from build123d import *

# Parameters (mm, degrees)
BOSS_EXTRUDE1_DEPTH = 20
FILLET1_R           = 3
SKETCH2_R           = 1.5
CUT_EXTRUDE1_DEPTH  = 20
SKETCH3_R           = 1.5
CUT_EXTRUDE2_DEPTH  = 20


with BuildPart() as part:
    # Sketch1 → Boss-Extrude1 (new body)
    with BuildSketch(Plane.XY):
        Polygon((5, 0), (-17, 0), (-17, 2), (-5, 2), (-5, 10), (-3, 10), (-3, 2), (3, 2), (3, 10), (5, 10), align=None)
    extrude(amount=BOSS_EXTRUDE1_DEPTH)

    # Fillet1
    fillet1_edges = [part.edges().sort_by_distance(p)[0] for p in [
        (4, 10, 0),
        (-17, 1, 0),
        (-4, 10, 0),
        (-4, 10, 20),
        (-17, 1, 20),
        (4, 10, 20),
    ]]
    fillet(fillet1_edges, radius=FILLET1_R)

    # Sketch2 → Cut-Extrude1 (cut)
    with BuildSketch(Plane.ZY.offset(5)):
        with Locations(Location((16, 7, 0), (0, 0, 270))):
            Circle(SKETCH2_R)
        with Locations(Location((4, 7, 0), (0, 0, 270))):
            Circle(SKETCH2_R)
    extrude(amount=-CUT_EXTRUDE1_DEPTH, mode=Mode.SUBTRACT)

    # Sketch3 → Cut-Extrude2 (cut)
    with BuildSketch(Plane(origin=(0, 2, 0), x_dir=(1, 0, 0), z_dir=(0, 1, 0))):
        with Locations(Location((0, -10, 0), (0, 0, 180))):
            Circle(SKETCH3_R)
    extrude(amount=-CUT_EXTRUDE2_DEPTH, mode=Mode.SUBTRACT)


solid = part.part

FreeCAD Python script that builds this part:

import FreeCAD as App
import Part
import Sketcher
from FreeCAD import Vector
Q = App.Units.Quantity


def edges_at(feature, points):
    """Names of the edges that pass closest to the given points."""
    edges = feature.Shape.Edges
    near = lambda p: min(range(len(edges)), key=lambda i: edges[i].distToShape(Part.Vertex(*p))[0])
    return sorted({f"Edge{near(p) + 1}" for p in points})


def add_polygon(sketch, points):
    """Adds a closed chain of lines whose ends are joined by coincident constraints."""
    first, n = sketch.GeometryCount, len(points)
    for a, b in zip(points, points[1:] + points[:1]):
        sketch.addGeometry(Part.LineSegment(App.Vector(*a, 0), App.Vector(*b, 0)), False)
    for i in range(n):
        sketch.addConstraint(Sketcher.Constraint("Coincident", first + i, 2, first + (i + 1) % n, 1))

doc = App.newDocument("Part")
body = doc.addObject("PartDesign::Body", "Body")

# Sketch on XY plane
sketch1 = body.newObject("Sketcher::SketchObject", "Sketch")
sketch1.AttachmentSupport = (doc.getObject("XY_Plane"), [""])
sketch1.MapMode = "FlatFace"
add_polygon(sketch1, [(-17, 0), (5, 0), (5, 10), (3, 10), (3, 2), (-3, 2), (-3, 10), (-5, 10), (-5, 2), (-17, 2)])  # lines 0-9
sketch1.addConstraint(Sketcher.Constraint("Horizontal", 0))
sketch1.addConstraint(Sketcher.Constraint("Vertical", 1))
sketch1.addConstraint(Sketcher.Constraint("Horizontal", 2))
sketch1.addConstraint(Sketcher.Constraint("Vertical", 3))
sketch1.addConstraint(Sketcher.Constraint("Horizontal", 4))
sketch1.addConstraint(Sketcher.Constraint("Vertical", 5))
sketch1.addConstraint(Sketcher.Constraint("Horizontal", 6))
sketch1.addConstraint(Sketcher.Constraint("Vertical", 7))
sketch1.addConstraint(Sketcher.Constraint("Horizontal", 8))
sketch1.addConstraint(Sketcher.Constraint("Vertical", 9))
sketch1.addConstraint(Sketcher.Constraint("Symmetric", 2, 2, 5, 2, -2))
sketch1.addConstraint(Sketcher.Constraint("PointOnObject", 0, 2, -1))
sketch1.addConstraint(Sketcher.Constraint("Horizontal", 4, 2, 7, 2))
sketch1.addConstraint(Sketcher.Constraint("Equal", 2, 6))
sketch1.addConstraint(Sketcher.Constraint("Equal", 6, 9))
sketch1.addConstraint(Sketcher.Constraint("DistanceX", 0, 1, 0, 2, Q("22 mm")))
sketch1.addConstraint(Sketcher.Constraint("DistanceX", 2, 2, 2, 1, Q("2 mm")))
sketch1.addConstraint(Sketcher.Constraint("DistanceX", 4, 2, 4, 1, Q("6 mm")))
sketch1.addConstraint(Sketcher.Constraint("DistanceY", 1, 1, 1, 2, Q("10 mm")))
pad1 = body.newObject("PartDesign::Pad", "Pad")
pad1.Profile = sketch1
pad1.Length = 20
doc.recompute()

fillet = body.newObject("PartDesign::Fillet", "Fillet")
fillet.Base = (pad1, edges_at(pad1, [
    (4, 10, 0),
    (-17, 1, 0),
    (-4, 10, 0),
    (-4, 10, 20),
    (-17, 1, 20),
    (4, 10, 20),
]))
fillet.Radius = 3

# Sketch on YZ plane
sketch2 = body.newObject("Sketcher::SketchObject", "Sketch001")
sketch2.AttachmentSupport = (doc.getObject("YZ_Plane"), [""])
sketch2.MapMode = "FlatFace"
sketch2.AttachmentOffset = App.Placement(Vector(0, 0, -5), App.Rotation())
sketch2.addGeometry(Part.Circle(Vector(7, 16, 0), Vector(0, 0, 1), 1.5), False)
sketch2.addGeometry(Part.Circle(Vector(7, 4, 0), Vector(0, 0, 1), 1.5), False)
sketch2.addConstraint(Sketcher.Constraint("Equal", 0, 1))
sketch2.addConstraint(Sketcher.Constraint("Vertical", 0, 3, 1, 3))
sketch2.addConstraint(Sketcher.Constraint("Diameter", 0, Q("3 mm")))
sketch2.addConstraint(Sketcher.Constraint("DistanceX", -1, 1, 0, 3, Q("7 mm")))
sketch2.addConstraint(Sketcher.Constraint("DistanceY", -1, 1, 0, 3, Q("16 mm")))
sketch2.addConstraint(Sketcher.Constraint("DistanceY", -1, 1, 1, 3, Q("4 mm")))
pocket1 = body.newObject("PartDesign::Pocket", "Pocket")
pocket1.Profile = sketch2
pocket1.Length = 20
pocket1.Reversed = True

# Sketch on XZ plane
sketch3 = body.newObject("Sketcher::SketchObject", "Sketch002")
sketch3.AttachmentSupport = (doc.getObject("XZ_Plane"), [""])
sketch3.MapMode = "FlatFace"
sketch3.AttachmentOffset = App.Placement(Vector(0, 0, -2), App.Rotation())
sketch3.addGeometry(Part.Circle(Vector(0, 10, 0), Vector(0, 0, 1), 1.5), False)
sketch3.addConstraint(Sketcher.Constraint("PointOnObject", 0, 3, -2))
sketch3.addConstraint(Sketcher.Constraint("Diameter", 0, Q("3 mm")))
sketch3.addConstraint(Sketcher.Constraint("DistanceY", -1, 1, 0, 3, Q("10 mm")))
pocket2 = body.newObject("PartDesign::Pocket", "Pocket001")
pocket2.Profile = sketch3
pocket2.Length = 20
pocket2.Reversed = True

doc.recompute()
